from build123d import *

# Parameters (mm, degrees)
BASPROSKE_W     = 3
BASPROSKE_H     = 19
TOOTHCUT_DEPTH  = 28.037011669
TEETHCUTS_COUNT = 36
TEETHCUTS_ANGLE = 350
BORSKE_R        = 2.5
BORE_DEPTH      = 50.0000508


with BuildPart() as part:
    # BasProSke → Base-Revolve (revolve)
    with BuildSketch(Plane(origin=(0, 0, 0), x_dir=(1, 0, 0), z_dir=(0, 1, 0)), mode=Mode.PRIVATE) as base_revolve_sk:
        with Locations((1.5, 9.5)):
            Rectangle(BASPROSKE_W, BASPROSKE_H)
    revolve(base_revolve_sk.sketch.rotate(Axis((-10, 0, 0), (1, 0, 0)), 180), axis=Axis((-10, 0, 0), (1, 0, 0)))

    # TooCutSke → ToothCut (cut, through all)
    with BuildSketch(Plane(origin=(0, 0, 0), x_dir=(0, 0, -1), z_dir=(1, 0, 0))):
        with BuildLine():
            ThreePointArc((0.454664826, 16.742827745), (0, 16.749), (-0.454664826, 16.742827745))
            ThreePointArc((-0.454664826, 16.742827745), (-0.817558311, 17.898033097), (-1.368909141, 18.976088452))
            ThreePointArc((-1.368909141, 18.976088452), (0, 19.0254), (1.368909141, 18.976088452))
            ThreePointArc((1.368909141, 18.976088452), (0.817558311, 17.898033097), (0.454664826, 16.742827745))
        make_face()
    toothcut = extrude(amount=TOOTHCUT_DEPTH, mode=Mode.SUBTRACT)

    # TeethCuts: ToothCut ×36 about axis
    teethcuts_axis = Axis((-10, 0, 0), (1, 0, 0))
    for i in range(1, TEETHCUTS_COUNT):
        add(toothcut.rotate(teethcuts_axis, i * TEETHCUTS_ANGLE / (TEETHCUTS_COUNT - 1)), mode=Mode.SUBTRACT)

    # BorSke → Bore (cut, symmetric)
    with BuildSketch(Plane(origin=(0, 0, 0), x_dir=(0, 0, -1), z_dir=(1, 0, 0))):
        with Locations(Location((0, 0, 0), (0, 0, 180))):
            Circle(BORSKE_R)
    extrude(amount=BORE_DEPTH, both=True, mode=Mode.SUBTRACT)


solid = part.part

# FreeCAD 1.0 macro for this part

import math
import FreeCAD as App
import Part
import Sketcher
from FreeCAD import Vector

doc = App.newDocument("Part")
body = doc.addObject("PartDesign::Body", "Body")

# Sketch on XZ plane
sketch1 = body.newObject("Sketcher::SketchObject", "Sketch")
sketch1.AttachmentSupport = (doc.getObject("XZ_Plane"), [""])
sketch1.MapMode = "FlatFace"
sketch1.addGeometry(Part.LineSegment(Vector(0, -19, 0), Vector(0, 0, 0)), False)
sketch1.addGeometry(Part.LineSegment(Vector(0, 0, 0), Vector(3, 0, 0)), False)
sketch1.addGeometry(Part.LineSegment(Vector(3, 0, 0), Vector(3, -19, 0)), False)
sketch1.addGeometry(Part.LineSegment(Vector(3, -19, 0), Vector(0, -19, 0)), False)
sketch1.addConstraint(Sketcher.Constraint("Coincident", 0, 2, 1, 1))
sketch1.addConstraint(Sketcher.Constraint("Coincident", 1, 2, 2, 1))
sketch1.addConstraint(Sketcher.Constraint("Coincident", 2, 2, 3, 1))
sketch1.addConstraint(Sketcher.Constraint("Coincident", 3, 2, 0, 1))
sketch1.addConstraint(Sketcher.Constraint("Vertical", 0))
sketch1.addConstraint(Sketcher.Constraint("Horizontal", 1))
sketch1.addConstraint(Sketcher.Constraint("Vertical", 2))
sketch1.addConstraint(Sketcher.Constraint("Horizontal", 3))
sketch1.addConstraint(Sketcher.Constraint("Coincident", 0, 2, -1, 1))
sketch1.addConstraint(Sketcher.Constraint("DistanceX", 1, 1, 1, 2, 3.0))
sketch1.addConstraint(Sketcher.Constraint("DistanceY", 0, 1, 0, 2, 19.0))
revolution = body.newObject("PartDesign::Revolution", "Revolution")
revolution.Profile = sketch1
revolution.ReferenceAxis = (sketch1, ["H_Axis"])
revolution.Angle = 360

# Sketch on YZ plane
sketch2 = body.newObject("Sketcher::SketchObject", "Sketch001")
sketch2.AttachmentSupport = (doc.getObject("YZ_Plane"), [""])
sketch2.MapMode = "FlatFace"
sketch2.addGeometry(Part.ArcOfCircle(Part.Circle(Vector(0, 0, 0), Vector(0, 0, 1), 16.7), math.radians(-1.56), math.radians(1.56)), False)
sketch2.addGeometry(Part.ArcOfCircle(Part.Circle(Vector(15.2, -7.5, 0), Vector(0, 0, 1), 7.2), math.radians(58.09), math.radians(77.38)), False)
sketch2.addGeometry(Part.ArcOfCircle(Part.Circle(Vector(0, 0, 0), Vector(0, 0, 1), 19), math.radians(-4.13), math.radians(4.13)), False)
sketch2.addGeometry(Part.ArcOfCircle(Part.Circle(Vector(15.2, 7.5, 0), Vector(0, 0, 1), 7.2), math.radians(-77.38), math.radians(-58.09)), False)
sketch2.addConstraint(Sketcher.Constraint("Coincident", 0, 1, 1, 2))
sketch2.addConstraint(Sketcher.Constraint("Coincident", 1, 1, 2, 1))
sketch2.addConstraint(Sketcher.Constraint("Coincident", 2, 2, 3, 2))
sketch2.addConstraint(Sketcher.Constraint("Coincident", 3, 1, 0, 2))
sketch2.addConstraint(Sketcher.Constraint("Coincident", 0, 3, -1, 1))
sketch2.addConstraint(Sketcher.Constraint("Coincident", 2, 3, -1, 1))
sketch2.addConstraint(Sketcher.Constraint("Equal", 1, 3))
sketch2.addConstraint(Sketcher.Constraint("Symmetric", 1, 3, 3, 3, -1))
sketch2.addConstraint(Sketcher.Constraint("Radius", 1, 7.2))
sketch2.addConstraint(Sketcher.Constraint("Radius", 0, 16.749))
sketch2.addConstraint(Sketcher.Constraint("Radius", 2, 19.0254))
sketch2.addConstraint(Sketcher.Constraint("DistanceY", 1, 3, -1, 1, 7.480829))
sketch2.addConstraint(Sketcher.Constraint("DistanceX", -1, 1, 1, 1, 18.976088))
pocket1 = body.newObject("PartDesign::Pocket", "Pocket")
pocket1.Profile = sketch2
pocket1.Type = "ThroughAll"
pocket1.Reversed = True
doc.recompute()

polarpattern = body.newObject("PartDesign::PolarPattern", "PolarPattern")
polarpattern.Originals = [pocket1]
polarpattern.Axis = (doc.getObject("X_Axis"), [""])
polarpattern.Angle = 360
polarpattern.Occurrences = 36
body.Tip = polarpattern

# Sketch on YZ plane
sketch3 = body.newObject("Sketcher::SketchObject", "Sketch002")
sketch3.AttachmentSupport = (doc.getObject("YZ_Plane"), [""])
sketch3.MapMode = "FlatFace"
sketch3.addGeometry(Part.Circle(Vector(0, 0, 0), Vector(0, 0, 1), 2.5), False)
sketch3.addConstraint(Sketcher.Constraint("Coincident", 0, 3, -1, 1))
sketch3.addConstraint(Sketcher.Constraint("Diameter", 0, 5.0))
pocket2 = body.newObject("PartDesign::Pocket", "Pocket001")
pocket2.Profile = sketch3
pocket2.Length = 100.000102
pocket2.Midplane = True

doc.recompute()
